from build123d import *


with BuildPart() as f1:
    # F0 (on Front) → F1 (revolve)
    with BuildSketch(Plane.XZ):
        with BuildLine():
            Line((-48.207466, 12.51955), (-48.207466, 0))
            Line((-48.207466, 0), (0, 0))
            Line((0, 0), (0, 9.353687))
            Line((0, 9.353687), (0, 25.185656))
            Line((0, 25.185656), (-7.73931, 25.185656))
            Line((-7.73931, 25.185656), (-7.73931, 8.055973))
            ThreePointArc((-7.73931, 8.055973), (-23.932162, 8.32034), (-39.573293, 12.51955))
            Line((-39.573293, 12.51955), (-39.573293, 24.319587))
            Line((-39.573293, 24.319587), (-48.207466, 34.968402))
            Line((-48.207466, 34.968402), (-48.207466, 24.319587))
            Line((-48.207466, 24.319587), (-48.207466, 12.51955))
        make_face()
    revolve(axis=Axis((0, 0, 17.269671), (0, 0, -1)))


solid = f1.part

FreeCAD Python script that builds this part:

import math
import FreeCAD as App
import Part
import Sketcher
from FreeCAD import Vector

doc = App.newDocument("Part")
body = doc.addObject("PartDesign::Body", "Body")

# Sketch on XZ plane
sketch1 = body.newObject("Sketcher::SketchObject", "Sketch")
sketch1.AttachmentSupport = (doc.getObject("XZ_Plane"), [""])
sketch1.MapMode = "FlatFace"
sketch1.addGeometry([
    Part.LineSegment(Vector(-48, 0, 0), Vector(0, 0, 0)),  # 0
    Part.LineSegment(Vector(0, 0, 0), Vector(0, 25, 0)),  # 1
    Part.LineSegment(Vector(0, 25, 0), Vector(-8, 25, 0)),  # 2
    Part.LineSegment(Vector(-8, 25, 0), Vector(-8, 8, 0)),  # 3
    Part.ArcOfCircle(Part.Circle(Vector(-15, 74, 0), Vector(0, 0, 1), 66), math.radians(-112), math.radians(-84)),  # 4
    Part.LineSegment(Vector(-40, 13, 0), Vector(-40, 24, 0)),  # 5
    Part.LineSegment(Vector(-40, 24, 0), Vector(-48, 35, 0)),  # 6
    Part.LineSegment(Vector(-48, 35, 0), Vector(-48, 0, 0)),  # 7
], False)
sketch1.addConstraint([
    Sketcher.Constraint("Coincident", 0, 2, 1, 1),
    Sketcher.Constraint("Coincident", 1, 2, 2, 1),
    Sketcher.Constraint("Coincident", 2, 2, 3, 1),
    Sketcher.Constraint("Coincident", 3, 2, 4, 2),
    Sketcher.Constraint("Coincident", 4, 1, 5, 1),
    Sketcher.Constraint("Coincident", 5, 2, 6, 1),
    Sketcher.Constraint("Coincident", 6, 2, 7, 1),
    Sketcher.Constraint("Coincident", 7, 2, 0, 1),
    Sketcher.Constraint("Horizontal", 0),
    Sketcher.Constraint("Vertical", 1),
    Sketcher.Constraint("Horizontal", 2),
    Sketcher.Constraint("Vertical", 3),
    Sketcher.Constraint("Vertical", 5),
    Sketcher.Constraint("Vertical", 7),
    Sketcher.Constraint("Coincident", 0, 2, -1, 1),
    Sketcher.Constraint("DistanceY", 7, 2, 7, 1, 34.968402),
    Sketcher.Constraint("Radius", 4, 66.009634),
    Sketcher.Constraint("DistanceX", 2, 2, 2, 1, 7.73931),
    Sketcher.Constraint("DistanceX", 0, 1, 0, 2, 48.207466),
    Sketcher.Constraint("DistanceY", 1, 1, 1, 2, 25.185656),
    Sketcher.Constraint("DistanceY", 3, 2, 3, 1, 17.129683),
    Sketcher.Constraint("DistanceY", 5, 1, 5, 2, 11.800037),
    Sketcher.Constraint("DistanceY", -1, 1, 4, 1, 12.51955),
    Sketcher.Constraint("DistanceY", 3, 2, 4, 3, 65.634539),
])
revolution = body.newObject("PartDesign::Revolution", "Revolution")
revolution.Profile = sketch1
revolution.ReferenceAxis = (sketch1, ["V_Axis"])
revolution.Angle = 360

doc.recompute()
